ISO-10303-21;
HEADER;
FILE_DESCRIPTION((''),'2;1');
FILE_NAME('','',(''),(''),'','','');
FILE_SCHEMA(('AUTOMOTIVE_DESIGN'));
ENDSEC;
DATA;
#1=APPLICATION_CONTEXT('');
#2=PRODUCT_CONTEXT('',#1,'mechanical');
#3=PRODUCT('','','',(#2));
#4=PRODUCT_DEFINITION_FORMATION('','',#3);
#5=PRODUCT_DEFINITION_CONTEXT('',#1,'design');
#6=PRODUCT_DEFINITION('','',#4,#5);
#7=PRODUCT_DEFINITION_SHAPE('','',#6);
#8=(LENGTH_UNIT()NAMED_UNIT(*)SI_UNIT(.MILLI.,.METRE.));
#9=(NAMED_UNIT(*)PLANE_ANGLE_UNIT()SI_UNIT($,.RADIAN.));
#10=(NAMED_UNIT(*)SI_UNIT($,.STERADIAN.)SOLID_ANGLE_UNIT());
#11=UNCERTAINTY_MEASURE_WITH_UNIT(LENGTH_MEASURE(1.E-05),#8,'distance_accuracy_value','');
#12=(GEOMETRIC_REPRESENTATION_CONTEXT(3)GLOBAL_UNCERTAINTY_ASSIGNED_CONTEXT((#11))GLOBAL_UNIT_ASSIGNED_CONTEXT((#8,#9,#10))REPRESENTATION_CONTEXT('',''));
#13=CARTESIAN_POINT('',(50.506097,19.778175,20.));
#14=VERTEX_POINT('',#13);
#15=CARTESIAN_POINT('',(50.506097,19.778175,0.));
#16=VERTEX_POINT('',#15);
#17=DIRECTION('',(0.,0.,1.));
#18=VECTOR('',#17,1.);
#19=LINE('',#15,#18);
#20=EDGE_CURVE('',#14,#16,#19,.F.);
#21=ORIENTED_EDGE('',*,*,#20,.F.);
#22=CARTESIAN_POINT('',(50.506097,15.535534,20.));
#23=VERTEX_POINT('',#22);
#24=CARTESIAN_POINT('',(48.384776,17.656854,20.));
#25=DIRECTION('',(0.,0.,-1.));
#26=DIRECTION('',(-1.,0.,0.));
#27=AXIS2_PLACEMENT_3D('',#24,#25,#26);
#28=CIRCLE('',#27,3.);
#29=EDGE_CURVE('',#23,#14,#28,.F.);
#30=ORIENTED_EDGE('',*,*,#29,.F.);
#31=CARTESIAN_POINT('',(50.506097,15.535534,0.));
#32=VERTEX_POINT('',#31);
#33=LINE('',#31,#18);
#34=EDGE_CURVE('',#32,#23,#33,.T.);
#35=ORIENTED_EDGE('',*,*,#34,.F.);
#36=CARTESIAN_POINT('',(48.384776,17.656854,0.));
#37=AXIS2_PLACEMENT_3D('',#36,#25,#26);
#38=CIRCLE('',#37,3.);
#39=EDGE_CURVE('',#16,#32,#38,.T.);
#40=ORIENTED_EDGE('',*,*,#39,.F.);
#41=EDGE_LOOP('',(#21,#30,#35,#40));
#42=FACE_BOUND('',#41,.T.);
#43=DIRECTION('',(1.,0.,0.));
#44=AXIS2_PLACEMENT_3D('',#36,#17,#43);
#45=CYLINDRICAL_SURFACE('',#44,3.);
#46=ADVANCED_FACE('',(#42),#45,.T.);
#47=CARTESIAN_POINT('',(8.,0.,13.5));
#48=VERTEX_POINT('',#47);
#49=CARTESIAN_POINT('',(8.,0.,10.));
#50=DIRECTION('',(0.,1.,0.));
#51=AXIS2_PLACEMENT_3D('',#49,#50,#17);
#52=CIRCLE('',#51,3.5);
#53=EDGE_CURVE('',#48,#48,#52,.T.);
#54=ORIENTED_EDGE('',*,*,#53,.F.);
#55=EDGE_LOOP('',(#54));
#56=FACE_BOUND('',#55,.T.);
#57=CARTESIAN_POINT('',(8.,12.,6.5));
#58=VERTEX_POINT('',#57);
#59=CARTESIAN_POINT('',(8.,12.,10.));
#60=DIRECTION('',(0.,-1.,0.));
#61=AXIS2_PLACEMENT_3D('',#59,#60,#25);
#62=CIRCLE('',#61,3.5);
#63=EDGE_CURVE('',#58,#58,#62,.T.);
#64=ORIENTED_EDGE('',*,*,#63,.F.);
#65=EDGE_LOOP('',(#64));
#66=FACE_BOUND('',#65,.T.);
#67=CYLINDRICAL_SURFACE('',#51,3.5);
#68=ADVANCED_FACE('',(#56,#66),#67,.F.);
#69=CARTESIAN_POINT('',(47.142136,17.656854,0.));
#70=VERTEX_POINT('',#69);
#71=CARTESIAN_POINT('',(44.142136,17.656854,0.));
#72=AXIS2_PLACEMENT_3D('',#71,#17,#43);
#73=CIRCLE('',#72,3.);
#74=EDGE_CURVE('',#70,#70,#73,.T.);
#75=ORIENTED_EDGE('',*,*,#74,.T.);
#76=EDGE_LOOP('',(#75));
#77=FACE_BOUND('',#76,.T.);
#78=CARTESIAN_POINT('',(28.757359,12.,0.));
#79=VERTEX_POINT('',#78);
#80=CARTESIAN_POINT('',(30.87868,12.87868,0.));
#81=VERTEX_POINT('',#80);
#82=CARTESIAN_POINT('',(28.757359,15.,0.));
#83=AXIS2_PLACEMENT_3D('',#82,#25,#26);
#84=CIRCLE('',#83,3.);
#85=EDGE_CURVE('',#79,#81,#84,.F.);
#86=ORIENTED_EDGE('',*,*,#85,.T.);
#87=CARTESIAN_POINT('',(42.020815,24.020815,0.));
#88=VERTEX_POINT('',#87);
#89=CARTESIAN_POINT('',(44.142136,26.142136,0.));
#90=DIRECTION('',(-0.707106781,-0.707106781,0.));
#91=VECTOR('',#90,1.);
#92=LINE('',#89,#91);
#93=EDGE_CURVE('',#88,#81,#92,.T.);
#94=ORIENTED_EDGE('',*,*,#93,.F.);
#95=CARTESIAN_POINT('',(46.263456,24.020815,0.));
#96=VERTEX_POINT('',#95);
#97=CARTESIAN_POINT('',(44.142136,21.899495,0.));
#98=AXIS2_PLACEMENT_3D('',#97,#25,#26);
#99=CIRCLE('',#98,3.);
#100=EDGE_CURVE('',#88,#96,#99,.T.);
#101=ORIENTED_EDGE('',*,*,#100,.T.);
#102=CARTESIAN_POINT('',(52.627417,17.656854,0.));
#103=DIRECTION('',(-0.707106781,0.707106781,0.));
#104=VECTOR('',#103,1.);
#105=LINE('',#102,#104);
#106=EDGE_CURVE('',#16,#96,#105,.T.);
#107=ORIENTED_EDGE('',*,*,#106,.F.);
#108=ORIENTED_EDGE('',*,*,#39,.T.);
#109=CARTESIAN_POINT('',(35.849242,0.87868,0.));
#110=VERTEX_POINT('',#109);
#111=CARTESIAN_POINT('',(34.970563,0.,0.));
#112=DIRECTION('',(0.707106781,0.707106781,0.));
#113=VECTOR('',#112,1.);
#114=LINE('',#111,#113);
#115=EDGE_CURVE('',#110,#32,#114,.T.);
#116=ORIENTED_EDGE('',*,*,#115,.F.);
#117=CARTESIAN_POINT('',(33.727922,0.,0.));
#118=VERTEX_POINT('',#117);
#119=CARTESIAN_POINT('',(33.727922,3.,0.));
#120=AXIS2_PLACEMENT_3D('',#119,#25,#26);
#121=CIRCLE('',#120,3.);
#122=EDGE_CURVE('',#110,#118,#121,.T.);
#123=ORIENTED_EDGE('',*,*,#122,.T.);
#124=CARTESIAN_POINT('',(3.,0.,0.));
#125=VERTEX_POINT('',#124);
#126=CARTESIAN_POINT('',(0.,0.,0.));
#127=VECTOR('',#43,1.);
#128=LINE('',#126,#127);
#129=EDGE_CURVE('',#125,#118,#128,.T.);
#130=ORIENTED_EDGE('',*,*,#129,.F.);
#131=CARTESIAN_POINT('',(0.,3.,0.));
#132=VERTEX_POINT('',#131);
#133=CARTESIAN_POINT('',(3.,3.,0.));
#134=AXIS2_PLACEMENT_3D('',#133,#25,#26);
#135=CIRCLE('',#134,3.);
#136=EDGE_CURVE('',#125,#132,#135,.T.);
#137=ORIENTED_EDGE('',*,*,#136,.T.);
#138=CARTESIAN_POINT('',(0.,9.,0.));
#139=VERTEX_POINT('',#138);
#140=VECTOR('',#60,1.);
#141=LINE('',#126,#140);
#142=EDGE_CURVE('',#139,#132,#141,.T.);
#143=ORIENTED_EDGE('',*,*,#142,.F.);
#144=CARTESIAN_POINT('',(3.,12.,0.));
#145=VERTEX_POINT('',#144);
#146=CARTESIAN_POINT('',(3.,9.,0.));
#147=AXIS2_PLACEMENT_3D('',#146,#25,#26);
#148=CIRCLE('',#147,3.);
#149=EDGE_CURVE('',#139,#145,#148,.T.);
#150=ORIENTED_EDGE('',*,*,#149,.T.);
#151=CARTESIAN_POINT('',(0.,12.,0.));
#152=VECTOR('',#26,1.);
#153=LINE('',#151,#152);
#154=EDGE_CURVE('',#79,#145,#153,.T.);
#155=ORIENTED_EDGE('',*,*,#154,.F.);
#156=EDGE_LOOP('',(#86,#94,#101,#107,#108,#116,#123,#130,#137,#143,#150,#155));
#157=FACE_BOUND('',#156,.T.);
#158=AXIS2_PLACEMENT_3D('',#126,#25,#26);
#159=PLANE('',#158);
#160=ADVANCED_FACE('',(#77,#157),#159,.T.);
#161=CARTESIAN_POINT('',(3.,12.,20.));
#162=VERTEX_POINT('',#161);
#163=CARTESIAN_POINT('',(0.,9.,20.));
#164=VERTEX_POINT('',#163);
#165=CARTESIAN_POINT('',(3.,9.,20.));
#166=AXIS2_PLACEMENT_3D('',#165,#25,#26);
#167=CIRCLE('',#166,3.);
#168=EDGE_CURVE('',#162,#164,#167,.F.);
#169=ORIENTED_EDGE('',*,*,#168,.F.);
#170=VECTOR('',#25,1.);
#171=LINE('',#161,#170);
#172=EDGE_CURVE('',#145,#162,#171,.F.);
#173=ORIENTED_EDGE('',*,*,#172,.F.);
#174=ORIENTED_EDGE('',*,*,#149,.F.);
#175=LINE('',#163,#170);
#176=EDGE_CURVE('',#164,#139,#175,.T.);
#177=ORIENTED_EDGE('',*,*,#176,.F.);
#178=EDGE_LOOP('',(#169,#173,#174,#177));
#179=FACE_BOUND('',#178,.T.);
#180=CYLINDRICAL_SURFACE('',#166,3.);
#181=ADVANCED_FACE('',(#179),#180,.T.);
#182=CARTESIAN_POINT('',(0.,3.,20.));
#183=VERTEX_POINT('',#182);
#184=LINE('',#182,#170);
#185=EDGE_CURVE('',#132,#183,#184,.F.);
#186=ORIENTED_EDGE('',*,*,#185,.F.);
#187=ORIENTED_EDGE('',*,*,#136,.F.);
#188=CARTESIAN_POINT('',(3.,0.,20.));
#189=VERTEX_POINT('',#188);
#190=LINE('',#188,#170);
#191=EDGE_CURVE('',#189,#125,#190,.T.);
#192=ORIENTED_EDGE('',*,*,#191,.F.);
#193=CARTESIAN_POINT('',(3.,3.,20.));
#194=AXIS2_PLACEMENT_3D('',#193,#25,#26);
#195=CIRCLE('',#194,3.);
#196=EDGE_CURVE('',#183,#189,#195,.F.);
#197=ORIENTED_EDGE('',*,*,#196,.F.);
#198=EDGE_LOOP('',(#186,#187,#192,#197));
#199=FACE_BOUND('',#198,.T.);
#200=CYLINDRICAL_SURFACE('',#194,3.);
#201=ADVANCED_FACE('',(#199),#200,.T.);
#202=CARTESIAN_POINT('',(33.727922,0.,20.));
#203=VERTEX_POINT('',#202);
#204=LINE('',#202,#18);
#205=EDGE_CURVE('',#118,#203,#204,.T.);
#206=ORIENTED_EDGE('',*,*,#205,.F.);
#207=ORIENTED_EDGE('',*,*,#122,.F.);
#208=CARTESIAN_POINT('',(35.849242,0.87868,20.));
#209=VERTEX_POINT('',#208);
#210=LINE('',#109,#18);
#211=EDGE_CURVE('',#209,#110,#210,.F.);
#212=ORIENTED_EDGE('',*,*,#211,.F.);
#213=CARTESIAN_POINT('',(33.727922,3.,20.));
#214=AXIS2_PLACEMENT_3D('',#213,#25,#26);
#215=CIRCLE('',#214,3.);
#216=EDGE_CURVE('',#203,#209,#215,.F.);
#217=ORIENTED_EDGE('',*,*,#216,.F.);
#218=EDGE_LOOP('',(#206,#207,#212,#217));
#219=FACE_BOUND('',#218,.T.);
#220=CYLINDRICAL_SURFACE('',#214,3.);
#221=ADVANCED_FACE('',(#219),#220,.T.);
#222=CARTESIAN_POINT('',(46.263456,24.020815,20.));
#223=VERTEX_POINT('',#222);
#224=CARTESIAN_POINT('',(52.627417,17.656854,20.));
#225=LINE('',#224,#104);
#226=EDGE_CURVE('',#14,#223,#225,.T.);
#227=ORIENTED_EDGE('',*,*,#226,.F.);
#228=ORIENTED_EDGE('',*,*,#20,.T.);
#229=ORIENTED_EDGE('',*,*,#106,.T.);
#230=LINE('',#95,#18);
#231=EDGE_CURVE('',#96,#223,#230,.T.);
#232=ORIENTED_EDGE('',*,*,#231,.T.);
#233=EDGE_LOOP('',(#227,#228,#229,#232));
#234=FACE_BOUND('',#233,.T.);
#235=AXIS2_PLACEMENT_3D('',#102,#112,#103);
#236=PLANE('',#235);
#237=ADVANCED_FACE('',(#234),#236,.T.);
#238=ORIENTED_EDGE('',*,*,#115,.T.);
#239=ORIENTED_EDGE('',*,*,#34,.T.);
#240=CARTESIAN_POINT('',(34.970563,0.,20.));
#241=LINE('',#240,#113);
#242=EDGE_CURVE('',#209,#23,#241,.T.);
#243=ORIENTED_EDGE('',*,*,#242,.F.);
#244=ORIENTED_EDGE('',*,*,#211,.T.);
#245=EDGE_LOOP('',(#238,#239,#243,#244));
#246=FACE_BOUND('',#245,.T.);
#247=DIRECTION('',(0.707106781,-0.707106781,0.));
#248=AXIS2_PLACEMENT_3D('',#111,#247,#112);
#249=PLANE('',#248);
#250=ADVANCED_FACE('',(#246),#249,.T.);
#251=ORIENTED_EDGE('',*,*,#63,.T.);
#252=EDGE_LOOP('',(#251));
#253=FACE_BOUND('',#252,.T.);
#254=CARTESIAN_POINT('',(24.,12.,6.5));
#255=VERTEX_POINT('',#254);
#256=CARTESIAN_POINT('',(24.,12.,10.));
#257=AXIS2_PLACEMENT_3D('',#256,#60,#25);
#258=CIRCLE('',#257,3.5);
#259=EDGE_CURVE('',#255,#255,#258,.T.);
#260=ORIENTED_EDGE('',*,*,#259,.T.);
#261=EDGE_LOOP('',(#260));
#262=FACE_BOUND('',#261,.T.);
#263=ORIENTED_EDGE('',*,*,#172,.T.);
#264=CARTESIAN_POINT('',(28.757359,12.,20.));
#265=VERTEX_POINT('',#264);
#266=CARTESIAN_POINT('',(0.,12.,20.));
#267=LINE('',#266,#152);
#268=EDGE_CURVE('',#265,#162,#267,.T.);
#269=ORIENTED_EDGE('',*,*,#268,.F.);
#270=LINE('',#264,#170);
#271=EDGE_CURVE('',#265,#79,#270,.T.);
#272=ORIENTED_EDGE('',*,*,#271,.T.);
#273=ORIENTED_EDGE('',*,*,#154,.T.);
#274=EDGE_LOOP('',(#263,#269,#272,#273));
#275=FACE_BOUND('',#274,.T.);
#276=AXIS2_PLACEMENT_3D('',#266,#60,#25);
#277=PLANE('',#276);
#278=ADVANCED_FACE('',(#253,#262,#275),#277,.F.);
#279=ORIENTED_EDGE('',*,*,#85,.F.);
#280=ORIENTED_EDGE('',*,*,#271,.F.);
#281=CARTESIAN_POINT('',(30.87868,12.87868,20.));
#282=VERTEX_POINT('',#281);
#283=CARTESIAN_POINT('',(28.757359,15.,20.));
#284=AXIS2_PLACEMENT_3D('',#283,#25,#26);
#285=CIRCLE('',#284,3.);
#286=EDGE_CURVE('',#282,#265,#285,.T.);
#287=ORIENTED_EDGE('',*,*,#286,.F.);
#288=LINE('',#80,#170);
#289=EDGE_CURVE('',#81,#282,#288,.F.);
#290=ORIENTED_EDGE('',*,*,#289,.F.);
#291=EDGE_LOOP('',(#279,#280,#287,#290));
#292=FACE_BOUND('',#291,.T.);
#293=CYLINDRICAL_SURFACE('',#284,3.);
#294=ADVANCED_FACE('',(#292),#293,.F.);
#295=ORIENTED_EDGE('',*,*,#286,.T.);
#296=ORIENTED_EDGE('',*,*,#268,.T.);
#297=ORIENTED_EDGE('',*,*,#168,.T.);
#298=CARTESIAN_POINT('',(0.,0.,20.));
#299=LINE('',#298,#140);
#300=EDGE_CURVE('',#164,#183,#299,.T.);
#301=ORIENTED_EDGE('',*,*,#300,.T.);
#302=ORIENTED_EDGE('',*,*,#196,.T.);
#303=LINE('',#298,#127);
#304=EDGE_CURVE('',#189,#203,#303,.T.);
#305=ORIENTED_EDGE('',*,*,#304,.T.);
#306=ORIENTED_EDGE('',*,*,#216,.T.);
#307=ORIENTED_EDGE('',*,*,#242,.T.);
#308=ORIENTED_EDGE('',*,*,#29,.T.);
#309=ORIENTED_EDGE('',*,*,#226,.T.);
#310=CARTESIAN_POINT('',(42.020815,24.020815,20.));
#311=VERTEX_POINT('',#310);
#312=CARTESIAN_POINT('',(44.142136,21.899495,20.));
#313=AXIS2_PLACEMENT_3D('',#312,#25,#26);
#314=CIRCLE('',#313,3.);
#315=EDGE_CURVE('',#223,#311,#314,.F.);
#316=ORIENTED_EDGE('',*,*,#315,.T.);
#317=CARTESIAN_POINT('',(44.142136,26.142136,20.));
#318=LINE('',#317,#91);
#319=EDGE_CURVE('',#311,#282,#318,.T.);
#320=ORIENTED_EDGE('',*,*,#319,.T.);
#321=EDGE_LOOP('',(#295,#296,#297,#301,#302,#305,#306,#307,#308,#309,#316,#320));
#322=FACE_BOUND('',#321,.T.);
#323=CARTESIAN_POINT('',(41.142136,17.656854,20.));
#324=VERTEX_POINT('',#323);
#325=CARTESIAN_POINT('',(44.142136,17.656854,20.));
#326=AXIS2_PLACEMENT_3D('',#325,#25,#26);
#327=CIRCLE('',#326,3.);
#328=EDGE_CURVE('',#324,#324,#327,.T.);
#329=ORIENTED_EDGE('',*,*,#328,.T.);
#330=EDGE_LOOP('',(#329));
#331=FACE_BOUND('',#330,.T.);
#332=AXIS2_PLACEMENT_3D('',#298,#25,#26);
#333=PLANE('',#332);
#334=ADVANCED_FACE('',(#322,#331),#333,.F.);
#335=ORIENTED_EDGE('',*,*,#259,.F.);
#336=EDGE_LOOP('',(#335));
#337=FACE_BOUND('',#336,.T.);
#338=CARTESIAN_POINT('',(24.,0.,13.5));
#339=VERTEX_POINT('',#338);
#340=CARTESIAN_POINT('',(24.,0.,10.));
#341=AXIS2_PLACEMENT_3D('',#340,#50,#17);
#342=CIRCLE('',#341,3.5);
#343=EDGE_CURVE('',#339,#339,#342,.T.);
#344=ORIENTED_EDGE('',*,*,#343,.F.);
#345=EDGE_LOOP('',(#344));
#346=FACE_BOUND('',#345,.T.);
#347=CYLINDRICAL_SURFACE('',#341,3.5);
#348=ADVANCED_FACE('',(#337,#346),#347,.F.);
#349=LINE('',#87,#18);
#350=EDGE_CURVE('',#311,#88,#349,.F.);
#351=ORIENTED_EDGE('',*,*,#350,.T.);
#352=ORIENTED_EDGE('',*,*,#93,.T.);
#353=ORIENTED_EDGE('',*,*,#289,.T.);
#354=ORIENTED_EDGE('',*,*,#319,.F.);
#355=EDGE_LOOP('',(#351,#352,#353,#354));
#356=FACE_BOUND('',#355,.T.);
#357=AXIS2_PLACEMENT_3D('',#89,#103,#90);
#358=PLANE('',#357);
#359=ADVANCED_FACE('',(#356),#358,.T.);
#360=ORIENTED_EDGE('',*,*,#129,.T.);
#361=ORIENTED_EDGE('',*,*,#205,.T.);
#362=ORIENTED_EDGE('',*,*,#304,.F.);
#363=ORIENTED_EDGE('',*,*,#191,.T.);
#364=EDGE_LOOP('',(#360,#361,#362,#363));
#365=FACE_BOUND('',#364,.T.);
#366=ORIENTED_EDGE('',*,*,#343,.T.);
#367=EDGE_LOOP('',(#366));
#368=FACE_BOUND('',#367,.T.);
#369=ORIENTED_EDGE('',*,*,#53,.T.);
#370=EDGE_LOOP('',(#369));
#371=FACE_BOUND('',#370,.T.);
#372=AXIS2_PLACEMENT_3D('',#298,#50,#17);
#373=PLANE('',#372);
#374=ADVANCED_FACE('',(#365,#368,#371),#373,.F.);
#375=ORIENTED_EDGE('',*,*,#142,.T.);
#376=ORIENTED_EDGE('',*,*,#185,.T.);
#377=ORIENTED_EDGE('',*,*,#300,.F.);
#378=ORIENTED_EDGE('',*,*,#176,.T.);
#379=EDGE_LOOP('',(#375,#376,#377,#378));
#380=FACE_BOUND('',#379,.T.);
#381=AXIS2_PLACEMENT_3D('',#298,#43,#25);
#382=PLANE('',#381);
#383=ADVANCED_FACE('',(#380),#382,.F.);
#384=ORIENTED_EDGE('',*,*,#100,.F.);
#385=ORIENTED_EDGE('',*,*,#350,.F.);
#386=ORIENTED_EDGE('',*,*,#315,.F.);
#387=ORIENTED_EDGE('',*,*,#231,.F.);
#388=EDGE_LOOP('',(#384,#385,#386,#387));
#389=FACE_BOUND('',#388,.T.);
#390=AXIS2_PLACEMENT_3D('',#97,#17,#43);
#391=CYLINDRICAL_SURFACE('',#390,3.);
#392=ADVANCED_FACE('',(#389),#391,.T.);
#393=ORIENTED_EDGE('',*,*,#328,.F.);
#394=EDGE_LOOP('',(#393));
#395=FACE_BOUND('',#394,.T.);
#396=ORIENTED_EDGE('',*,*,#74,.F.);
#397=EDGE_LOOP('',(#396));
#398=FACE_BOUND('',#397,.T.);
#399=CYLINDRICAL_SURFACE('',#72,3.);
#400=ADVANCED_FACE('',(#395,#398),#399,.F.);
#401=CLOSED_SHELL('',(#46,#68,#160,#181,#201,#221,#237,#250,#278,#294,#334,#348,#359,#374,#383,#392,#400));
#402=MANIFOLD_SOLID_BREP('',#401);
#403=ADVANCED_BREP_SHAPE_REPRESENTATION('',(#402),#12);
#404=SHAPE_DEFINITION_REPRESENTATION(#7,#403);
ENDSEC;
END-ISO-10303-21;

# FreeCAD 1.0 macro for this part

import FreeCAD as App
import Part
import Sketcher

V = App.Vector
Q = App.Units.Quantity


def edges_at(feature, points):
    """Names of the edges that pass closest to the given points."""
    edges = feature.Shape.Edges
    near = lambda p: min(range(len(edges)), key=lambda i: edges[i].distToShape(Part.Vertex(*p))[0])
    return sorted({f"Edge{near(p) + 1}" for p in points})


def add_polygon(sketch, points):
    """Adds a closed chain of lines whose ends are joined by coincident constraints."""
    first, n = sketch.GeometryCount, len(points)
    for a, b in zip(points, points[1:] + points[:1]):
        sketch.addGeometry(Part.LineSegment(App.Vector(*a, 0), App.Vector(*b, 0)), False)
    for i in range(n):
        sketch.addConstraint(Sketcher.Constraint("Coincident", first + i, 2, first + (i + 1) % n, 1))

doc = App.newDocument("Part")
body = doc.addObject("PartDesign::Body", "Body")

sketch1 = doc.addObject("Sketcher::SketchObject", "Sketch")
body.addObject(sketch1)
sketch1.AttachmentSupport = (doc.XY_Plane, [""])
sketch1.MapMode = "FlatFace"
add_polygon(sketch1, [(0, 12), (0, 0), (30, 0), (30, 12)])
sketch1.addConstraint(Sketcher.Constraint("Vertical", 0))
sketch1.addConstraint(Sketcher.Constraint("Horizontal", 1))
sketch1.addConstraint(Sketcher.Constraint("Vertical", 2))
sketch1.addConstraint(Sketcher.Constraint("Horizontal", 3))
sketch1.addConstraint(Sketcher.Constraint("Coincident", 0, 2, -1, 1))
sketch1.addConstraint(Sketcher.Constraint("DistanceX", 1, 1, 1, 2, Q("30 mm")))
sketch1.addConstraint(Sketcher.Constraint("DistanceY", 0, 2, 0, 1, Q("12 mm")))
pad1 = doc.addObject("PartDesign::Pad", "Pad")
body.addObject(pad1)
pad1.Profile = sketch1
pad1.Length = 20

sketch2 = doc.addObject("Sketcher::SketchObject", "Sketch001")
body.addObject(sketch2)
sketch2.AttachmentSupport = (doc.XY_Plane, [""])
sketch2.MapMode = "FlatFace"
sketch2.AttachmentOffset = App.Placement(V(0, 0, 20), App.Rotation())
add_polygon(sketch2, [(30, 0), (35, 0), (52.6, 17.7), (44.1, 26.1), (30, 12)])
sketch2.addConstraint(Sketcher.Constraint("Horizontal", 0))
sketch2.addConstraint(Sketcher.Constraint("Vertical", 4))
sketch2.addConstraint(Sketcher.Constraint("PointOnObject", 0, 2, -1))
sketch2.addConstraint(Sketcher.Constraint("Perpendicular", 1, 2))
sketch2.addConstraint(Sketcher.Constraint("Perpendicular", 2, 3))
sketch2.addConstraint(Sketcher.Constraint("DistanceY", 4, 2, 4, 1, Q("12 mm")))
sketch2.addConstraint(Sketcher.Constraint("Angle", 1, Q("45 deg")))
sketch2.addConstraint(Sketcher.Constraint("Distance", 2, Q("12 mm")))
sketch2.addConstraint(Sketcher.Constraint("Distance", 3, Q("20 mm")))
sketch2.addConstraint(Sketcher.Constraint("DistanceX", -1, 1, 3, 2, Q("30 mm")))
pad2 = doc.addObject("PartDesign::Pad", "Pad001")
body.addObject(pad2)
pad2.Profile = sketch2
pad2.Length = 20
pad2.Reversed = True

sketch3 = doc.addObject("Sketcher::SketchObject", "Sketch002")
body.addObject(sketch3)
sketch3.AttachmentSupport = (doc.XZ_Plane, [""])
sketch3.MapMode = "FlatFace"
sketch3.AttachmentOffset = App.Placement(V(0, 0, -12), App.Rotation())
sketch3.addGeometry(Part.Circle(V(8, 10, 0), V(0, 0, 1), 3.5), False)
sketch3.addGeometry(Part.Circle(V(24, 10, 0), V(0, 0, 1), 3.5), False)
sketch3.addConstraint(Sketcher.Constraint("Equal", 0, 1))
sketch3.addConstraint(Sketcher.Constraint("Horizontal", 0, 3, 1, 3))
sketch3.addConstraint(Sketcher.Constraint("Diameter", 0, Q("7 mm")))
sketch3.addConstraint(Sketcher.Constraint("DistanceX", -1, 1, 0, 3, Q("8 mm")))
sketch3.addConstraint(Sketcher.Constraint("DistanceY", -1, 1, 0, 3, Q("10 mm")))
sketch3.addConstraint(Sketcher.Constraint("DistanceX", -1, 1, 1, 3, Q("24 mm")))
pocket1 = doc.addObject("PartDesign::Pocket", "Pocket")
body.addObject(pocket1)
pocket1.Profile = sketch3
pocket1.Type = "ThroughAll"
pocket1.Midplane = True

sketch4 = doc.addObject("Sketcher::SketchObject", "Sketch003")
body.addObject(sketch4)
sketch4.AttachmentSupport = (doc.XY_Plane, [""])
sketch4.MapMode = "FlatFace"
sketch4.AttachmentOffset = App.Placement(V(0, 0, 20), App.Rotation())
sketch4.addGeometry(Part.Circle(V(44.1, 17.7, 0), V(0, 0, 1), 3), False)
sketch4.addConstraint(Sketcher.Constraint("Diameter", 0, Q("6 mm")))
sketch4.addConstraint(Sketcher.Constraint("DistanceX", -1, 1, 0, 3, Q("44.142136 mm")))
sketch4.addConstraint(Sketcher.Constraint("DistanceY", -1, 1, 0, 3, Q("17.656854 mm")))
pocket2 = doc.addObject("PartDesign::Pocket", "Pocket001")
body.addObject(pocket2)
pocket2.Profile = sketch4
pocket2.Type = "ThroughAll"
pocket2.Midplane = True
doc.recompute()

fillet = doc.addObject("PartDesign::Fillet", "Fillet")
body.addObject(fillet)
fillet.Base = (pocket2, edges_at(pocket2, [
    (44.142, 26.142, 10),
    (52.627, 17.657, 10),
    (34.971, 0, 10),
    (0, 12, 10),
    (30, 12, 10),
    (0, 0, 10),
]))
fillet.Radius = 3

doc.recompute()
